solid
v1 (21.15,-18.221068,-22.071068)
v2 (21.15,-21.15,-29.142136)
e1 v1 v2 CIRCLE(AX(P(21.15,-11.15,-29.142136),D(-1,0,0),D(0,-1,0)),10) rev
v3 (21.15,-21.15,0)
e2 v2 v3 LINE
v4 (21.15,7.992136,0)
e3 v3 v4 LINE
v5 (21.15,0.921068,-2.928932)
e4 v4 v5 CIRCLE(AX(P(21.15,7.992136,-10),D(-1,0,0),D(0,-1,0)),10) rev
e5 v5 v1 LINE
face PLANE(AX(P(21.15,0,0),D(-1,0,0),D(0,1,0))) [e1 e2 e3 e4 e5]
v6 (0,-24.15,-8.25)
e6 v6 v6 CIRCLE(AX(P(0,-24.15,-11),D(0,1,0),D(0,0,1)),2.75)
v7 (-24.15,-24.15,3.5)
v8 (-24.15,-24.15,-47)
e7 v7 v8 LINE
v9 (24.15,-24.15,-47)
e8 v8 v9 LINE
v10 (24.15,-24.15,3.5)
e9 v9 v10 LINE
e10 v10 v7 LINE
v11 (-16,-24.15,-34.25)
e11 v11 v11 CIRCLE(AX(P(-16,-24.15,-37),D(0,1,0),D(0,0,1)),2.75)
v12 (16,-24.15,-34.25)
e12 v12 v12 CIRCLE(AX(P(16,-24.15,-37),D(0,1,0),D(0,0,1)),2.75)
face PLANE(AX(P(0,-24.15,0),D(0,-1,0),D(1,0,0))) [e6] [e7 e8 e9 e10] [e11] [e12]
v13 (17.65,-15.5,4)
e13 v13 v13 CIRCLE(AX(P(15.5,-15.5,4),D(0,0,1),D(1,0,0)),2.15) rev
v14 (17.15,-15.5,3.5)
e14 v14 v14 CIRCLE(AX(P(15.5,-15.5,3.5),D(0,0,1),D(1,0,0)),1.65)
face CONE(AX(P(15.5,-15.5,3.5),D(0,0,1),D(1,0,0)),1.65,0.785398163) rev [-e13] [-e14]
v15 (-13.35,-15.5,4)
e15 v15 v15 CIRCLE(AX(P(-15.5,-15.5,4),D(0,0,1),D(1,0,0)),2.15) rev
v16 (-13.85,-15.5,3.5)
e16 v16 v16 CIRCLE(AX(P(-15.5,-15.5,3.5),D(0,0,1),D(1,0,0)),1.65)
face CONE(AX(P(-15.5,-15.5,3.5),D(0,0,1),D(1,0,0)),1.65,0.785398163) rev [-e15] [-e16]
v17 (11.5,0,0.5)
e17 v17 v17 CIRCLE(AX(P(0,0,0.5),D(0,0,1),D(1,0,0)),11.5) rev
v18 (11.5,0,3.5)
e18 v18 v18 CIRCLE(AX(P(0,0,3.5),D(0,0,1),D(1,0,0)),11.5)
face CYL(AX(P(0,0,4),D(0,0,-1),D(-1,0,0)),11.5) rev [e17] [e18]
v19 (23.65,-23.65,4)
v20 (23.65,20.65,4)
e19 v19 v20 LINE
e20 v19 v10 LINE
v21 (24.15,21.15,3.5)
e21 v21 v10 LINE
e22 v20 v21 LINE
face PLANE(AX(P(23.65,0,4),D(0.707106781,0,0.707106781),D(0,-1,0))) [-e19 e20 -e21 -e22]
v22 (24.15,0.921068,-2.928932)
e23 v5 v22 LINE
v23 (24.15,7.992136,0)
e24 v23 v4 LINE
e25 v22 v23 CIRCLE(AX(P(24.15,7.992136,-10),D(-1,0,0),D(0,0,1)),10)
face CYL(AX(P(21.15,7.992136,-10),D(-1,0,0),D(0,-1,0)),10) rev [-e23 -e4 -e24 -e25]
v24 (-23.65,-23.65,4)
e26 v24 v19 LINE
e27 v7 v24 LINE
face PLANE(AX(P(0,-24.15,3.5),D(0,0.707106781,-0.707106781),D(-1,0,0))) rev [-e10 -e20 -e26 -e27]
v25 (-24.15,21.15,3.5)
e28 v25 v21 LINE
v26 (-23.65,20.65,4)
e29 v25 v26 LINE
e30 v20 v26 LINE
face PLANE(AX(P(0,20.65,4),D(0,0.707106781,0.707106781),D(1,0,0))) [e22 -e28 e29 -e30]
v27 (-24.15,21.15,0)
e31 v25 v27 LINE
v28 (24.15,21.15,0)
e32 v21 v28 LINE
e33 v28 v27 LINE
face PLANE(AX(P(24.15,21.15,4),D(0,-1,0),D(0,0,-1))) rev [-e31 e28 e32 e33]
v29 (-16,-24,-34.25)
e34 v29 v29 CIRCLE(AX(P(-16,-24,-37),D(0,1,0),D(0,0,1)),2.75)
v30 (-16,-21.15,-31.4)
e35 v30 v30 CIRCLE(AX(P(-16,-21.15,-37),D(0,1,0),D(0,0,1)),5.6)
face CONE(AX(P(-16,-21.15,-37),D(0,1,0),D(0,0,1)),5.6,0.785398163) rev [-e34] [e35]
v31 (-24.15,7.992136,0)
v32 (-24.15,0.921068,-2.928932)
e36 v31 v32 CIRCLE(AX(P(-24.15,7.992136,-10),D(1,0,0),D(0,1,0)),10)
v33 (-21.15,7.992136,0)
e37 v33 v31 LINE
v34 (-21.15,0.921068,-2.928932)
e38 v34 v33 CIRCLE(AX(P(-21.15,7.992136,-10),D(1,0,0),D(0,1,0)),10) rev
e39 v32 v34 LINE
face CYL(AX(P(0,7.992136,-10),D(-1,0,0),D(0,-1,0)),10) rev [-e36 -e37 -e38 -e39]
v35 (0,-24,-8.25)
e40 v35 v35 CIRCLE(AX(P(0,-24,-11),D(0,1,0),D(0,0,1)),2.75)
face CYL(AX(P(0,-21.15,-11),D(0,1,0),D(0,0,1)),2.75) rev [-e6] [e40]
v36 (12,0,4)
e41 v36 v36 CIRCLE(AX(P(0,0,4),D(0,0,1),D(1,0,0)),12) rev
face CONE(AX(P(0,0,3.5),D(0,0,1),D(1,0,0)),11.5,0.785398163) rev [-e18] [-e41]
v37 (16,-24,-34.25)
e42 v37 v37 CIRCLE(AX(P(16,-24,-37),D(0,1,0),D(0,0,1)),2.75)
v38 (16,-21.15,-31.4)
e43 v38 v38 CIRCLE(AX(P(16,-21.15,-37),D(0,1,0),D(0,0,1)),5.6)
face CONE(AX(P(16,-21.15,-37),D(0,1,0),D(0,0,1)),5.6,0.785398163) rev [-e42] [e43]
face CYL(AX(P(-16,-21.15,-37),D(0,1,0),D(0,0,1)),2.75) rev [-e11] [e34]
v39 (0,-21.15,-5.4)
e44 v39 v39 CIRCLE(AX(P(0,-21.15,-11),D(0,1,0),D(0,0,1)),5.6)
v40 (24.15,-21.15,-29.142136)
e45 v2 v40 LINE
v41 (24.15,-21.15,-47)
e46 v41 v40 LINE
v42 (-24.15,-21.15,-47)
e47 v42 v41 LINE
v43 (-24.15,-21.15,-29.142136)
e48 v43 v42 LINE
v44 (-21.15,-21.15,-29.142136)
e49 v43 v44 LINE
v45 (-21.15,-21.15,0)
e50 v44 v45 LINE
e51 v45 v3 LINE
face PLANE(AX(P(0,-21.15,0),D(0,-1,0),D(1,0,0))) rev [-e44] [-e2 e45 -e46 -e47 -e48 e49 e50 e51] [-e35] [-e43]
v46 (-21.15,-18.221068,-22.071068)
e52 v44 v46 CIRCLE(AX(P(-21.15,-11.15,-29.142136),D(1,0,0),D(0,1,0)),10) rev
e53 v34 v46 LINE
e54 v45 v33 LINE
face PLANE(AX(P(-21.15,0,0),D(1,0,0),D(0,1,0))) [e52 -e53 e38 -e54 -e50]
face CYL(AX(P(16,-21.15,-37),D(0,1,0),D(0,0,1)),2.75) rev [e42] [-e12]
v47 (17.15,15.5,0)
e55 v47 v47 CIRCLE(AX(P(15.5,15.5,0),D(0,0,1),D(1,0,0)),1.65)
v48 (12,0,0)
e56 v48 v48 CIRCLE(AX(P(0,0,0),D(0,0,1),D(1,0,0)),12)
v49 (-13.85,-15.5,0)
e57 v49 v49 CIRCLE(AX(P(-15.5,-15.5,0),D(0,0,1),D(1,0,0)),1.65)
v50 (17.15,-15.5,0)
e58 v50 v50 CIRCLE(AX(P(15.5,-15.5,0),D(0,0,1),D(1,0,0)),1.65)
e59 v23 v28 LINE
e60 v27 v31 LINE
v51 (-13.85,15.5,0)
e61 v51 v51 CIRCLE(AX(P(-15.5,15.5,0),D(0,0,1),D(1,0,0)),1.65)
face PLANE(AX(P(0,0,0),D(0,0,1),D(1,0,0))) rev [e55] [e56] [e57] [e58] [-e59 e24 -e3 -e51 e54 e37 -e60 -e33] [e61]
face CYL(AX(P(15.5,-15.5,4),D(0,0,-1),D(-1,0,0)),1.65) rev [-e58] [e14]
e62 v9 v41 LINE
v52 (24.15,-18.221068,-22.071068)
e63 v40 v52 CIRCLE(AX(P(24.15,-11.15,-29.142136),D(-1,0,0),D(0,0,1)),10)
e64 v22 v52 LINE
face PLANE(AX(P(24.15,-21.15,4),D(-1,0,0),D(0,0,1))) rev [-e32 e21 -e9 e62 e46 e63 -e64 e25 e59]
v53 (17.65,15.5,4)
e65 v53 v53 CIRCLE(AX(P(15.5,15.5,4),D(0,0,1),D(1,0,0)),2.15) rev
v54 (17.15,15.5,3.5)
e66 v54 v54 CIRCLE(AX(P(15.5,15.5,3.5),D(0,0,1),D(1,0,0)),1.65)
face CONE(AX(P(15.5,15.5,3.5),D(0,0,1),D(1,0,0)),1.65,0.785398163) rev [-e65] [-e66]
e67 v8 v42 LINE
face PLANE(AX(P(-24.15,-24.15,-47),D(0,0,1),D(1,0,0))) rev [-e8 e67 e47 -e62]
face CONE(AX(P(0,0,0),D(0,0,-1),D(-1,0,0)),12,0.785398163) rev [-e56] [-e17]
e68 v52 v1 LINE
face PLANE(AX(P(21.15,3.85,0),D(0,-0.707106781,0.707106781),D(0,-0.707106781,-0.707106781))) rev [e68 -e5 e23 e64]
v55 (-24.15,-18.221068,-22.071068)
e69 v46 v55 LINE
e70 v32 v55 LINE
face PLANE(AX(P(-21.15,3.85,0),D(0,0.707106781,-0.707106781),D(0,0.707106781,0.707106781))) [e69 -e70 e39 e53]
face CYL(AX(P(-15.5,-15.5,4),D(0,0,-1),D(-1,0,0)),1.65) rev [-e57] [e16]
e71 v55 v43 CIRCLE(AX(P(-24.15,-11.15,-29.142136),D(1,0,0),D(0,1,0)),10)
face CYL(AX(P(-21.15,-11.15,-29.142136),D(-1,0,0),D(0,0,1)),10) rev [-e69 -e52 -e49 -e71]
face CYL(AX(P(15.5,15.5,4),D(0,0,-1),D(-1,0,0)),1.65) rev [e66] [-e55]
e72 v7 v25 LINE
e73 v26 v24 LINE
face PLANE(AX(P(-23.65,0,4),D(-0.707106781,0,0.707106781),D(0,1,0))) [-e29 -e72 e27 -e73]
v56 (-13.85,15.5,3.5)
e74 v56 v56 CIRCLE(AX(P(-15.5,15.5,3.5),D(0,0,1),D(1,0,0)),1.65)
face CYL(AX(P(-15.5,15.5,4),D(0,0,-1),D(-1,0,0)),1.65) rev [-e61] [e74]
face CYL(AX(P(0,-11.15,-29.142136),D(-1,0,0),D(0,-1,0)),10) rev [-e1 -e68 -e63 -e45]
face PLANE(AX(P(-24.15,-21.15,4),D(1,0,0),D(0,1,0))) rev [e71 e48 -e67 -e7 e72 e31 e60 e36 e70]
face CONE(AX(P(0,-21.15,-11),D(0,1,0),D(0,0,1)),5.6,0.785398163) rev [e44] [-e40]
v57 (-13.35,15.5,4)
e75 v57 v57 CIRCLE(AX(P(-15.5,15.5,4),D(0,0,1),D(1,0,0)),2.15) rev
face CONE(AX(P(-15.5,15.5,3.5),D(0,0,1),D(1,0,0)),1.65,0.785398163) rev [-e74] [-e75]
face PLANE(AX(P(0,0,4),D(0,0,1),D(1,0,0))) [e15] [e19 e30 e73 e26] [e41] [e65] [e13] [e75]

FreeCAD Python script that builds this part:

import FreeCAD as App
import Part
import Sketcher

V = App.Vector
Q = App.Units.Quantity


def edges_at(feature, points):
    """Names of the edges that pass closest to the given points."""
    edges = feature.Shape.Edges
    near = lambda p: min(range(len(edges)), key=lambda i: edges[i].distToShape(Part.Vertex(*p))[0])
    return sorted({f"Edge{near(p) + 1}" for p in points})


def add_polygon(sketch, points):
    """Adds a closed chain of lines whose ends are joined by coincident constraints."""
    first, n = sketch.GeometryCount, len(points)
    for a, b in zip(points, points[1:] + points[:1]):
        sketch.addGeometry(Part.LineSegment(App.Vector(*a, 0), App.Vector(*b, 0)), False)
    for i in range(n):
        sketch.addConstraint(Sketcher.Constraint("Coincident", first + i, 2, first + (i + 1) % n, 1))

doc = App.newDocument("Part")
params = doc.addObject("Spreadsheet::Sheet", "Params")
for row, (alias, value) in enumerate([
    ("sketch1_diameter", "23 mm"),
    ("sketch1_diameter2", "3.3 mm"),
    ("sketch1_width", "48.3 mm"),
    ("sketch1_height", "42.3 mm"),
    ("pad1_length", "4 mm"),
    ("sketch2_height", "51 mm"),
    ("sketch2_width", "48.3 mm"),
    ("pad2_length", "3 mm"),
    ("sketch3_width", "25 mm"),
    ("pad3_length", "3 mm"),
    ("fillet_radius", "10 mm"),
    ("chamfer_size", "0.5 mm"),
    ("chamfer2_size", "0.5 mm"),
    ("sketch4_width", "3 mm"),
    ("sketch4_height", "5.6 mm"),
    ("sketch4_width2", "0.15 mm"),
    ("groove_angle", "360 deg"),
    ("linearpattern_pitch", "30.528675 mm"),
    ("linearpattern2_pitch", "30.528675 mm"),
], start=1):
    params.set(f"A{row}", alias)
    params.set(f"B{row}", "=" + value)
    params.setAlias(f"B{row}", alias)

body = doc.addObject("PartDesign::Body", "Body")

# Sketch on XY plane
sketch1 = doc.addObject("Sketcher::SketchObject", "Sketch")
body.addObject(sketch1)
sketch1.AttachmentSupport = (doc.XY_Plane, [""])
sketch1.MapMode = "FlatFace"
add_polygon(sketch1, [(-24.1, 21.1), (-24.1, -21.1), (24.1, -21.1), (24.1, 21.1)])  # lines 0-3
sketch1.addGeometry(Part.Circle(V(-15.5, -15.5, 0), V(0, 0, 1), 1.6), False)  # 4
sketch1.addGeometry(Part.Circle(V(15.5, -15.5, 0), V(0, 0, 1), 1.6), False)  # 5
sketch1.addGeometry(Part.Circle(V(-15.5, 15.5, 0), V(0, 0, 1), 1.6), False)  # 6
sketch1.addGeometry(Part.Circle(V(0, 0, 0), V(0, 0, 1), 11.5), False)  # 7
sketch1.addGeometry(Part.Circle(V(15.5, 15.5, 0), V(0, 0, 1), 1.6), False)  # 8
sketch1.addConstraint(Sketcher.Constraint("Vertical", 0))
sketch1.addConstraint(Sketcher.Constraint("Horizontal", 1))
sketch1.addConstraint(Sketcher.Constraint("Vertical", 2))
sketch1.addConstraint(Sketcher.Constraint("Horizontal", 3))
sketch1.addConstraint(Sketcher.Constraint("Coincident", 7, 3, -1, 1))
sketch1.addConstraint(Sketcher.Constraint("Equal", 4, 5))
sketch1.addConstraint(Sketcher.Constraint("Equal", 5, 6))
sketch1.addConstraint(Sketcher.Constraint("Equal", 6, 8))
sketch1.addConstraint(Sketcher.Constraint("Symmetric", 5, 3, 6, 3, -1, 1))
sketch1.addConstraint(Sketcher.Constraint("Symmetric", 4, 3, 8, 3, -1, 1))
sketch1.addConstraint(Sketcher.Constraint("Symmetric", 0, 2, 2, 2, -1, 1))
sketch1.addConstraint(Sketcher.Constraint("Symmetric", 4, 3, 5, 3, -2))
sketch1.addConstraint(Sketcher.Constraint("Diameter", 7, Q("23 mm")))
sketch1.addConstraint(Sketcher.Constraint("Diameter", 4, Q("3.3 mm")))
sketch1.addConstraint(Sketcher.Constraint("DistanceX", 1, 1, 1, 2, Q("48.3 mm")))
sketch1.addConstraint(Sketcher.Constraint("DistanceY", 0, 2, 0, 1, Q("42.3 mm")))
sketch1.addConstraint(Sketcher.Constraint("DistanceX", 4, 3, 5, 3, Q("31 mm")))
sketch1.addConstraint(Sketcher.Constraint("DistanceY", 4, 3, 6, 3, Q("31 mm")))
sketch1.setExpression("Constraints[16]", "Params.sketch1_diameter")
sketch1.setExpression("Constraints[17]", "Params.sketch1_diameter2")
sketch1.setExpression("Constraints[18]", "Params.sketch1_width")
sketch1.setExpression("Constraints[19]", "Params.sketch1_height")
pad1 = doc.addObject("PartDesign::Pad", "Pad")
body.addObject(pad1)
pad1.Profile = sketch1
pad1.setExpression("Length", "Params.pad1_length")

# Sketch on XZ plane
sketch2 = doc.addObject("Sketcher::SketchObject", "Sketch001")
body.addObject(sketch2)
sketch2.AttachmentSupport = (doc.XZ_Plane, [""])
sketch2.MapMode = "FlatFace"
sketch2.AttachmentOffset = App.Placement(V(0, 0, 21.15), App.Rotation())
add_polygon(sketch2, [(-24, 4), (-24, -47), (24, -47), (24, 4)])  # lines 0-3
sketch2.addConstraint(Sketcher.Constraint("Vertical", 0))
sketch2.addConstraint(Sketcher.Constraint("Horizontal", 1))
sketch2.addConstraint(Sketcher.Constraint("Vertical", 2))
sketch2.addConstraint(Sketcher.Constraint("Horizontal", 3))
sketch2.addConstraint(Sketcher.Constraint("DistanceY", 0, 2, 0, 1, Q("51 mm")))
sketch2.addConstraint(Sketcher.Constraint("DistanceX", 1, 1, 1, 2, Q("48.3 mm")))
sketch2.addConstraint(Sketcher.Constraint("DistanceY", 0, 2, -1, 1, Q("47 mm")))
sketch2.addConstraint(Sketcher.Constraint("DistanceX", 0, 2, -1, 1, Q("24.15 mm")))
sketch2.setExpression("Constraints[8]", "Params.sketch2_height")
sketch2.setExpression("Constraints[9]", "Params.sketch2_width")
pad2 = doc.addObject("PartDesign::Pad", "Pad001")
body.addObject(pad2)
pad2.Profile = sketch2
pad2.setExpression("Length", "Params.pad2_length")

# Sketch on YZ plane
sketch3 = doc.addObject("Sketcher::SketchObject", "Sketch002")
body.addObject(sketch3)
sketch3.AttachmentSupport = (doc.YZ_Plane, [""])
sketch3.MapMode = "FlatFace"
sketch3.AttachmentOffset = App.Placement(V(0, 0, -24.15), App.Rotation())
add_polygon(sketch3, [(4, 0), (-21, -25), (-21, 0)])  # lines 0-2
sketch3.addConstraint(Sketcher.Constraint("Vertical", 1))
sketch3.addConstraint(Sketcher.Constraint("Horizontal", 2))
sketch3.addConstraint(Sketcher.Constraint("PointOnObject", 1, 2, -1))
sketch3.addConstraint(Sketcher.Constraint("Equal", 2, 1))
sketch3.addConstraint(Sketcher.Constraint("DistanceX", 2, 1, 2, 2, Q("25 mm")))
sketch3.addConstraint(Sketcher.Constraint("DistanceX", 0, 2, -1, 1, Q("21.15 mm")))
sketch3.setExpression("Constraints[7]", "Params.sketch3_width")
pad3 = doc.addObject("PartDesign::Pad", "Pad002")
body.addObject(pad3)
pad3.Profile = sketch3
pad3.setExpression("Length", "Params.pad3_length")
doc.recompute()

mirrored = doc.addObject("PartDesign::Mirrored", "Mirrored")
body.addObject(mirrored)
mirrored.Originals = [pad3]
mirrored.MirrorPlane = (doc.YZ_Plane, [""])
body.Tip = mirrored
doc.recompute()

fillet = doc.addObject("PartDesign::Fillet", "Fillet")
body.addObject(fillet)
fillet.Base = (mirrored, edges_at(mirrored, [
    (-22.65, 3.85, 0),
    (-22.65, -21.15, -25),
    (22.65, 3.85, 0),
    (22.65, -21.15, -25),
]))
fillet.setExpression("Radius", "Params.fillet_radius")
doc.recompute()

chamfer = doc.addObject("PartDesign::Chamfer", "Chamfer")
body.addObject(chamfer)
chamfer.Base = (fillet, edges_at(fillet, [
    (-11.5, 0, 4),
    (24.15, -1.5, 4),
    (-17.15, 15.5, 4),
    (0, 21.15, 4),
    (13.85, 15.5, 4),
    (13.85, -15.5, 4),
    (-17.15, -15.5, 4),
    (0, -24.15, 4),
    (-24.15, -1.5, 4),
]))
chamfer.setExpression("Size", "Params.chamfer_size")
doc.recompute()

chamfer2 = doc.addObject("PartDesign::Chamfer", "Chamfer001")
body.addObject(chamfer2)
chamfer2.Base = (chamfer, edges_at(chamfer, [(-11.5, 0, 0)]))
chamfer2.setExpression("Size", "Params.chamfer2_size")

# Sketch on YZ plane
sketch4 = doc.addObject("Sketcher::SketchObject", "Sketch003")
body.addObject(sketch4)
sketch4.AttachmentSupport = (doc.YZ_Plane, [""])
sketch4.MapMode = "FlatFace"
add_polygon(sketch4, [(-24.15, -11), (-21.15, -11), (-21.15, -5.4), (-24, -8.25), (-24.15, -8.25)])  # lines 0-4
sketch4.addGeometry(Part.LineSegment(V(-21.15, -11, 0), V(-24.15, -11, 0)), True)  # axis
sketch4.addConstraint(Sketcher.Constraint("Horizontal", 0))
sketch4.addConstraint(Sketcher.Constraint("Vertical", 1))
sketch4.addConstraint(Sketcher.Constraint("Horizontal", 3))
sketch4.addConstraint(Sketcher.Constraint("Vertical", 4))
sketch4.addConstraint(Sketcher.Constraint("Horizontal", 5))
sketch4.addConstraint(Sketcher.Constraint("Coincident", 5, 1, 0, 2))
sketch4.addConstraint(Sketcher.Constraint("Vertical", 3, 2, 5, 2))
sketch4.addConstraint(Sketcher.Constraint("DistanceX", 0, 1, 0, 2, Q("3 mm")))
sketch4.addConstraint(Sketcher.Constraint("Angle", 2, Q("-135 deg")))
sketch4.addConstraint(Sketcher.Constraint("DistanceY", 1, 1, 1, 2, Q("5.6 mm")))
sketch4.addConstraint(Sketcher.Constraint("DistanceY", 0, 2, -1, 1, Q("11 mm")))
sketch4.addConstraint(Sketcher.Constraint("DistanceX", 2, 2, -1, 1, Q("24 mm")))
sketch4.addConstraint(Sketcher.Constraint("DistanceX", 3, 2, 3, 1, Q("0.15 mm")))
sketch4.setExpression("Constraints[12]", "Params.sketch4_width")
sketch4.setExpression("Constraints[14]", "Params.sketch4_height")
sketch4.setExpression("Constraints[17]", "Params.sketch4_width2")
groove = doc.addObject("PartDesign::Groove", "Groove")
body.addObject(groove)
groove.Profile = sketch4
groove.ReferenceAxis = (sketch4, ["Axis0"])
groove.setExpression("Angle", "Params.groove_angle")
doc.recompute()

datumline = doc.addObject("PartDesign::Line", "DatumLine")
body.addObject(datumline)
datumline.Placement = App.Placement(V(0, 0, 0), App.Rotation(V(0, 0, 1), V(0.524097426, 0, -0.851658317)))
linearpattern = doc.addObject("PartDesign::LinearPattern", "LinearPattern")
body.addObject(linearpattern)
linearpattern.Originals = [groove]
linearpattern.Direction = (datumline, [""])
linearpattern.Mode = "offset"
linearpattern.setExpression("Offset", "Params.linearpattern_pitch")
linearpattern.Occurrences = 2
body.Tip = linearpattern
doc.recompute()

datumline2 = doc.addObject("PartDesign::Line", "DatumLine001")
body.addObject(datumline2)
datumline2.Placement = App.Placement(V(0, 0, 0), App.Rotation(V(0, 0, 1), V(-0.524097426, 0, -0.851658317)))
linearpattern2 = doc.addObject("PartDesign::LinearPattern", "LinearPattern001")
body.addObject(linearpattern2)
linearpattern2.Originals = [groove]
linearpattern2.Direction = (datumline2, [""])
linearpattern2.Mode = "offset"
linearpattern2.setExpression("Offset", "Params.linearpattern2_pitch")
linearpattern2.Occurrences = 2
body.Tip = linearpattern2

doc.recompute()
